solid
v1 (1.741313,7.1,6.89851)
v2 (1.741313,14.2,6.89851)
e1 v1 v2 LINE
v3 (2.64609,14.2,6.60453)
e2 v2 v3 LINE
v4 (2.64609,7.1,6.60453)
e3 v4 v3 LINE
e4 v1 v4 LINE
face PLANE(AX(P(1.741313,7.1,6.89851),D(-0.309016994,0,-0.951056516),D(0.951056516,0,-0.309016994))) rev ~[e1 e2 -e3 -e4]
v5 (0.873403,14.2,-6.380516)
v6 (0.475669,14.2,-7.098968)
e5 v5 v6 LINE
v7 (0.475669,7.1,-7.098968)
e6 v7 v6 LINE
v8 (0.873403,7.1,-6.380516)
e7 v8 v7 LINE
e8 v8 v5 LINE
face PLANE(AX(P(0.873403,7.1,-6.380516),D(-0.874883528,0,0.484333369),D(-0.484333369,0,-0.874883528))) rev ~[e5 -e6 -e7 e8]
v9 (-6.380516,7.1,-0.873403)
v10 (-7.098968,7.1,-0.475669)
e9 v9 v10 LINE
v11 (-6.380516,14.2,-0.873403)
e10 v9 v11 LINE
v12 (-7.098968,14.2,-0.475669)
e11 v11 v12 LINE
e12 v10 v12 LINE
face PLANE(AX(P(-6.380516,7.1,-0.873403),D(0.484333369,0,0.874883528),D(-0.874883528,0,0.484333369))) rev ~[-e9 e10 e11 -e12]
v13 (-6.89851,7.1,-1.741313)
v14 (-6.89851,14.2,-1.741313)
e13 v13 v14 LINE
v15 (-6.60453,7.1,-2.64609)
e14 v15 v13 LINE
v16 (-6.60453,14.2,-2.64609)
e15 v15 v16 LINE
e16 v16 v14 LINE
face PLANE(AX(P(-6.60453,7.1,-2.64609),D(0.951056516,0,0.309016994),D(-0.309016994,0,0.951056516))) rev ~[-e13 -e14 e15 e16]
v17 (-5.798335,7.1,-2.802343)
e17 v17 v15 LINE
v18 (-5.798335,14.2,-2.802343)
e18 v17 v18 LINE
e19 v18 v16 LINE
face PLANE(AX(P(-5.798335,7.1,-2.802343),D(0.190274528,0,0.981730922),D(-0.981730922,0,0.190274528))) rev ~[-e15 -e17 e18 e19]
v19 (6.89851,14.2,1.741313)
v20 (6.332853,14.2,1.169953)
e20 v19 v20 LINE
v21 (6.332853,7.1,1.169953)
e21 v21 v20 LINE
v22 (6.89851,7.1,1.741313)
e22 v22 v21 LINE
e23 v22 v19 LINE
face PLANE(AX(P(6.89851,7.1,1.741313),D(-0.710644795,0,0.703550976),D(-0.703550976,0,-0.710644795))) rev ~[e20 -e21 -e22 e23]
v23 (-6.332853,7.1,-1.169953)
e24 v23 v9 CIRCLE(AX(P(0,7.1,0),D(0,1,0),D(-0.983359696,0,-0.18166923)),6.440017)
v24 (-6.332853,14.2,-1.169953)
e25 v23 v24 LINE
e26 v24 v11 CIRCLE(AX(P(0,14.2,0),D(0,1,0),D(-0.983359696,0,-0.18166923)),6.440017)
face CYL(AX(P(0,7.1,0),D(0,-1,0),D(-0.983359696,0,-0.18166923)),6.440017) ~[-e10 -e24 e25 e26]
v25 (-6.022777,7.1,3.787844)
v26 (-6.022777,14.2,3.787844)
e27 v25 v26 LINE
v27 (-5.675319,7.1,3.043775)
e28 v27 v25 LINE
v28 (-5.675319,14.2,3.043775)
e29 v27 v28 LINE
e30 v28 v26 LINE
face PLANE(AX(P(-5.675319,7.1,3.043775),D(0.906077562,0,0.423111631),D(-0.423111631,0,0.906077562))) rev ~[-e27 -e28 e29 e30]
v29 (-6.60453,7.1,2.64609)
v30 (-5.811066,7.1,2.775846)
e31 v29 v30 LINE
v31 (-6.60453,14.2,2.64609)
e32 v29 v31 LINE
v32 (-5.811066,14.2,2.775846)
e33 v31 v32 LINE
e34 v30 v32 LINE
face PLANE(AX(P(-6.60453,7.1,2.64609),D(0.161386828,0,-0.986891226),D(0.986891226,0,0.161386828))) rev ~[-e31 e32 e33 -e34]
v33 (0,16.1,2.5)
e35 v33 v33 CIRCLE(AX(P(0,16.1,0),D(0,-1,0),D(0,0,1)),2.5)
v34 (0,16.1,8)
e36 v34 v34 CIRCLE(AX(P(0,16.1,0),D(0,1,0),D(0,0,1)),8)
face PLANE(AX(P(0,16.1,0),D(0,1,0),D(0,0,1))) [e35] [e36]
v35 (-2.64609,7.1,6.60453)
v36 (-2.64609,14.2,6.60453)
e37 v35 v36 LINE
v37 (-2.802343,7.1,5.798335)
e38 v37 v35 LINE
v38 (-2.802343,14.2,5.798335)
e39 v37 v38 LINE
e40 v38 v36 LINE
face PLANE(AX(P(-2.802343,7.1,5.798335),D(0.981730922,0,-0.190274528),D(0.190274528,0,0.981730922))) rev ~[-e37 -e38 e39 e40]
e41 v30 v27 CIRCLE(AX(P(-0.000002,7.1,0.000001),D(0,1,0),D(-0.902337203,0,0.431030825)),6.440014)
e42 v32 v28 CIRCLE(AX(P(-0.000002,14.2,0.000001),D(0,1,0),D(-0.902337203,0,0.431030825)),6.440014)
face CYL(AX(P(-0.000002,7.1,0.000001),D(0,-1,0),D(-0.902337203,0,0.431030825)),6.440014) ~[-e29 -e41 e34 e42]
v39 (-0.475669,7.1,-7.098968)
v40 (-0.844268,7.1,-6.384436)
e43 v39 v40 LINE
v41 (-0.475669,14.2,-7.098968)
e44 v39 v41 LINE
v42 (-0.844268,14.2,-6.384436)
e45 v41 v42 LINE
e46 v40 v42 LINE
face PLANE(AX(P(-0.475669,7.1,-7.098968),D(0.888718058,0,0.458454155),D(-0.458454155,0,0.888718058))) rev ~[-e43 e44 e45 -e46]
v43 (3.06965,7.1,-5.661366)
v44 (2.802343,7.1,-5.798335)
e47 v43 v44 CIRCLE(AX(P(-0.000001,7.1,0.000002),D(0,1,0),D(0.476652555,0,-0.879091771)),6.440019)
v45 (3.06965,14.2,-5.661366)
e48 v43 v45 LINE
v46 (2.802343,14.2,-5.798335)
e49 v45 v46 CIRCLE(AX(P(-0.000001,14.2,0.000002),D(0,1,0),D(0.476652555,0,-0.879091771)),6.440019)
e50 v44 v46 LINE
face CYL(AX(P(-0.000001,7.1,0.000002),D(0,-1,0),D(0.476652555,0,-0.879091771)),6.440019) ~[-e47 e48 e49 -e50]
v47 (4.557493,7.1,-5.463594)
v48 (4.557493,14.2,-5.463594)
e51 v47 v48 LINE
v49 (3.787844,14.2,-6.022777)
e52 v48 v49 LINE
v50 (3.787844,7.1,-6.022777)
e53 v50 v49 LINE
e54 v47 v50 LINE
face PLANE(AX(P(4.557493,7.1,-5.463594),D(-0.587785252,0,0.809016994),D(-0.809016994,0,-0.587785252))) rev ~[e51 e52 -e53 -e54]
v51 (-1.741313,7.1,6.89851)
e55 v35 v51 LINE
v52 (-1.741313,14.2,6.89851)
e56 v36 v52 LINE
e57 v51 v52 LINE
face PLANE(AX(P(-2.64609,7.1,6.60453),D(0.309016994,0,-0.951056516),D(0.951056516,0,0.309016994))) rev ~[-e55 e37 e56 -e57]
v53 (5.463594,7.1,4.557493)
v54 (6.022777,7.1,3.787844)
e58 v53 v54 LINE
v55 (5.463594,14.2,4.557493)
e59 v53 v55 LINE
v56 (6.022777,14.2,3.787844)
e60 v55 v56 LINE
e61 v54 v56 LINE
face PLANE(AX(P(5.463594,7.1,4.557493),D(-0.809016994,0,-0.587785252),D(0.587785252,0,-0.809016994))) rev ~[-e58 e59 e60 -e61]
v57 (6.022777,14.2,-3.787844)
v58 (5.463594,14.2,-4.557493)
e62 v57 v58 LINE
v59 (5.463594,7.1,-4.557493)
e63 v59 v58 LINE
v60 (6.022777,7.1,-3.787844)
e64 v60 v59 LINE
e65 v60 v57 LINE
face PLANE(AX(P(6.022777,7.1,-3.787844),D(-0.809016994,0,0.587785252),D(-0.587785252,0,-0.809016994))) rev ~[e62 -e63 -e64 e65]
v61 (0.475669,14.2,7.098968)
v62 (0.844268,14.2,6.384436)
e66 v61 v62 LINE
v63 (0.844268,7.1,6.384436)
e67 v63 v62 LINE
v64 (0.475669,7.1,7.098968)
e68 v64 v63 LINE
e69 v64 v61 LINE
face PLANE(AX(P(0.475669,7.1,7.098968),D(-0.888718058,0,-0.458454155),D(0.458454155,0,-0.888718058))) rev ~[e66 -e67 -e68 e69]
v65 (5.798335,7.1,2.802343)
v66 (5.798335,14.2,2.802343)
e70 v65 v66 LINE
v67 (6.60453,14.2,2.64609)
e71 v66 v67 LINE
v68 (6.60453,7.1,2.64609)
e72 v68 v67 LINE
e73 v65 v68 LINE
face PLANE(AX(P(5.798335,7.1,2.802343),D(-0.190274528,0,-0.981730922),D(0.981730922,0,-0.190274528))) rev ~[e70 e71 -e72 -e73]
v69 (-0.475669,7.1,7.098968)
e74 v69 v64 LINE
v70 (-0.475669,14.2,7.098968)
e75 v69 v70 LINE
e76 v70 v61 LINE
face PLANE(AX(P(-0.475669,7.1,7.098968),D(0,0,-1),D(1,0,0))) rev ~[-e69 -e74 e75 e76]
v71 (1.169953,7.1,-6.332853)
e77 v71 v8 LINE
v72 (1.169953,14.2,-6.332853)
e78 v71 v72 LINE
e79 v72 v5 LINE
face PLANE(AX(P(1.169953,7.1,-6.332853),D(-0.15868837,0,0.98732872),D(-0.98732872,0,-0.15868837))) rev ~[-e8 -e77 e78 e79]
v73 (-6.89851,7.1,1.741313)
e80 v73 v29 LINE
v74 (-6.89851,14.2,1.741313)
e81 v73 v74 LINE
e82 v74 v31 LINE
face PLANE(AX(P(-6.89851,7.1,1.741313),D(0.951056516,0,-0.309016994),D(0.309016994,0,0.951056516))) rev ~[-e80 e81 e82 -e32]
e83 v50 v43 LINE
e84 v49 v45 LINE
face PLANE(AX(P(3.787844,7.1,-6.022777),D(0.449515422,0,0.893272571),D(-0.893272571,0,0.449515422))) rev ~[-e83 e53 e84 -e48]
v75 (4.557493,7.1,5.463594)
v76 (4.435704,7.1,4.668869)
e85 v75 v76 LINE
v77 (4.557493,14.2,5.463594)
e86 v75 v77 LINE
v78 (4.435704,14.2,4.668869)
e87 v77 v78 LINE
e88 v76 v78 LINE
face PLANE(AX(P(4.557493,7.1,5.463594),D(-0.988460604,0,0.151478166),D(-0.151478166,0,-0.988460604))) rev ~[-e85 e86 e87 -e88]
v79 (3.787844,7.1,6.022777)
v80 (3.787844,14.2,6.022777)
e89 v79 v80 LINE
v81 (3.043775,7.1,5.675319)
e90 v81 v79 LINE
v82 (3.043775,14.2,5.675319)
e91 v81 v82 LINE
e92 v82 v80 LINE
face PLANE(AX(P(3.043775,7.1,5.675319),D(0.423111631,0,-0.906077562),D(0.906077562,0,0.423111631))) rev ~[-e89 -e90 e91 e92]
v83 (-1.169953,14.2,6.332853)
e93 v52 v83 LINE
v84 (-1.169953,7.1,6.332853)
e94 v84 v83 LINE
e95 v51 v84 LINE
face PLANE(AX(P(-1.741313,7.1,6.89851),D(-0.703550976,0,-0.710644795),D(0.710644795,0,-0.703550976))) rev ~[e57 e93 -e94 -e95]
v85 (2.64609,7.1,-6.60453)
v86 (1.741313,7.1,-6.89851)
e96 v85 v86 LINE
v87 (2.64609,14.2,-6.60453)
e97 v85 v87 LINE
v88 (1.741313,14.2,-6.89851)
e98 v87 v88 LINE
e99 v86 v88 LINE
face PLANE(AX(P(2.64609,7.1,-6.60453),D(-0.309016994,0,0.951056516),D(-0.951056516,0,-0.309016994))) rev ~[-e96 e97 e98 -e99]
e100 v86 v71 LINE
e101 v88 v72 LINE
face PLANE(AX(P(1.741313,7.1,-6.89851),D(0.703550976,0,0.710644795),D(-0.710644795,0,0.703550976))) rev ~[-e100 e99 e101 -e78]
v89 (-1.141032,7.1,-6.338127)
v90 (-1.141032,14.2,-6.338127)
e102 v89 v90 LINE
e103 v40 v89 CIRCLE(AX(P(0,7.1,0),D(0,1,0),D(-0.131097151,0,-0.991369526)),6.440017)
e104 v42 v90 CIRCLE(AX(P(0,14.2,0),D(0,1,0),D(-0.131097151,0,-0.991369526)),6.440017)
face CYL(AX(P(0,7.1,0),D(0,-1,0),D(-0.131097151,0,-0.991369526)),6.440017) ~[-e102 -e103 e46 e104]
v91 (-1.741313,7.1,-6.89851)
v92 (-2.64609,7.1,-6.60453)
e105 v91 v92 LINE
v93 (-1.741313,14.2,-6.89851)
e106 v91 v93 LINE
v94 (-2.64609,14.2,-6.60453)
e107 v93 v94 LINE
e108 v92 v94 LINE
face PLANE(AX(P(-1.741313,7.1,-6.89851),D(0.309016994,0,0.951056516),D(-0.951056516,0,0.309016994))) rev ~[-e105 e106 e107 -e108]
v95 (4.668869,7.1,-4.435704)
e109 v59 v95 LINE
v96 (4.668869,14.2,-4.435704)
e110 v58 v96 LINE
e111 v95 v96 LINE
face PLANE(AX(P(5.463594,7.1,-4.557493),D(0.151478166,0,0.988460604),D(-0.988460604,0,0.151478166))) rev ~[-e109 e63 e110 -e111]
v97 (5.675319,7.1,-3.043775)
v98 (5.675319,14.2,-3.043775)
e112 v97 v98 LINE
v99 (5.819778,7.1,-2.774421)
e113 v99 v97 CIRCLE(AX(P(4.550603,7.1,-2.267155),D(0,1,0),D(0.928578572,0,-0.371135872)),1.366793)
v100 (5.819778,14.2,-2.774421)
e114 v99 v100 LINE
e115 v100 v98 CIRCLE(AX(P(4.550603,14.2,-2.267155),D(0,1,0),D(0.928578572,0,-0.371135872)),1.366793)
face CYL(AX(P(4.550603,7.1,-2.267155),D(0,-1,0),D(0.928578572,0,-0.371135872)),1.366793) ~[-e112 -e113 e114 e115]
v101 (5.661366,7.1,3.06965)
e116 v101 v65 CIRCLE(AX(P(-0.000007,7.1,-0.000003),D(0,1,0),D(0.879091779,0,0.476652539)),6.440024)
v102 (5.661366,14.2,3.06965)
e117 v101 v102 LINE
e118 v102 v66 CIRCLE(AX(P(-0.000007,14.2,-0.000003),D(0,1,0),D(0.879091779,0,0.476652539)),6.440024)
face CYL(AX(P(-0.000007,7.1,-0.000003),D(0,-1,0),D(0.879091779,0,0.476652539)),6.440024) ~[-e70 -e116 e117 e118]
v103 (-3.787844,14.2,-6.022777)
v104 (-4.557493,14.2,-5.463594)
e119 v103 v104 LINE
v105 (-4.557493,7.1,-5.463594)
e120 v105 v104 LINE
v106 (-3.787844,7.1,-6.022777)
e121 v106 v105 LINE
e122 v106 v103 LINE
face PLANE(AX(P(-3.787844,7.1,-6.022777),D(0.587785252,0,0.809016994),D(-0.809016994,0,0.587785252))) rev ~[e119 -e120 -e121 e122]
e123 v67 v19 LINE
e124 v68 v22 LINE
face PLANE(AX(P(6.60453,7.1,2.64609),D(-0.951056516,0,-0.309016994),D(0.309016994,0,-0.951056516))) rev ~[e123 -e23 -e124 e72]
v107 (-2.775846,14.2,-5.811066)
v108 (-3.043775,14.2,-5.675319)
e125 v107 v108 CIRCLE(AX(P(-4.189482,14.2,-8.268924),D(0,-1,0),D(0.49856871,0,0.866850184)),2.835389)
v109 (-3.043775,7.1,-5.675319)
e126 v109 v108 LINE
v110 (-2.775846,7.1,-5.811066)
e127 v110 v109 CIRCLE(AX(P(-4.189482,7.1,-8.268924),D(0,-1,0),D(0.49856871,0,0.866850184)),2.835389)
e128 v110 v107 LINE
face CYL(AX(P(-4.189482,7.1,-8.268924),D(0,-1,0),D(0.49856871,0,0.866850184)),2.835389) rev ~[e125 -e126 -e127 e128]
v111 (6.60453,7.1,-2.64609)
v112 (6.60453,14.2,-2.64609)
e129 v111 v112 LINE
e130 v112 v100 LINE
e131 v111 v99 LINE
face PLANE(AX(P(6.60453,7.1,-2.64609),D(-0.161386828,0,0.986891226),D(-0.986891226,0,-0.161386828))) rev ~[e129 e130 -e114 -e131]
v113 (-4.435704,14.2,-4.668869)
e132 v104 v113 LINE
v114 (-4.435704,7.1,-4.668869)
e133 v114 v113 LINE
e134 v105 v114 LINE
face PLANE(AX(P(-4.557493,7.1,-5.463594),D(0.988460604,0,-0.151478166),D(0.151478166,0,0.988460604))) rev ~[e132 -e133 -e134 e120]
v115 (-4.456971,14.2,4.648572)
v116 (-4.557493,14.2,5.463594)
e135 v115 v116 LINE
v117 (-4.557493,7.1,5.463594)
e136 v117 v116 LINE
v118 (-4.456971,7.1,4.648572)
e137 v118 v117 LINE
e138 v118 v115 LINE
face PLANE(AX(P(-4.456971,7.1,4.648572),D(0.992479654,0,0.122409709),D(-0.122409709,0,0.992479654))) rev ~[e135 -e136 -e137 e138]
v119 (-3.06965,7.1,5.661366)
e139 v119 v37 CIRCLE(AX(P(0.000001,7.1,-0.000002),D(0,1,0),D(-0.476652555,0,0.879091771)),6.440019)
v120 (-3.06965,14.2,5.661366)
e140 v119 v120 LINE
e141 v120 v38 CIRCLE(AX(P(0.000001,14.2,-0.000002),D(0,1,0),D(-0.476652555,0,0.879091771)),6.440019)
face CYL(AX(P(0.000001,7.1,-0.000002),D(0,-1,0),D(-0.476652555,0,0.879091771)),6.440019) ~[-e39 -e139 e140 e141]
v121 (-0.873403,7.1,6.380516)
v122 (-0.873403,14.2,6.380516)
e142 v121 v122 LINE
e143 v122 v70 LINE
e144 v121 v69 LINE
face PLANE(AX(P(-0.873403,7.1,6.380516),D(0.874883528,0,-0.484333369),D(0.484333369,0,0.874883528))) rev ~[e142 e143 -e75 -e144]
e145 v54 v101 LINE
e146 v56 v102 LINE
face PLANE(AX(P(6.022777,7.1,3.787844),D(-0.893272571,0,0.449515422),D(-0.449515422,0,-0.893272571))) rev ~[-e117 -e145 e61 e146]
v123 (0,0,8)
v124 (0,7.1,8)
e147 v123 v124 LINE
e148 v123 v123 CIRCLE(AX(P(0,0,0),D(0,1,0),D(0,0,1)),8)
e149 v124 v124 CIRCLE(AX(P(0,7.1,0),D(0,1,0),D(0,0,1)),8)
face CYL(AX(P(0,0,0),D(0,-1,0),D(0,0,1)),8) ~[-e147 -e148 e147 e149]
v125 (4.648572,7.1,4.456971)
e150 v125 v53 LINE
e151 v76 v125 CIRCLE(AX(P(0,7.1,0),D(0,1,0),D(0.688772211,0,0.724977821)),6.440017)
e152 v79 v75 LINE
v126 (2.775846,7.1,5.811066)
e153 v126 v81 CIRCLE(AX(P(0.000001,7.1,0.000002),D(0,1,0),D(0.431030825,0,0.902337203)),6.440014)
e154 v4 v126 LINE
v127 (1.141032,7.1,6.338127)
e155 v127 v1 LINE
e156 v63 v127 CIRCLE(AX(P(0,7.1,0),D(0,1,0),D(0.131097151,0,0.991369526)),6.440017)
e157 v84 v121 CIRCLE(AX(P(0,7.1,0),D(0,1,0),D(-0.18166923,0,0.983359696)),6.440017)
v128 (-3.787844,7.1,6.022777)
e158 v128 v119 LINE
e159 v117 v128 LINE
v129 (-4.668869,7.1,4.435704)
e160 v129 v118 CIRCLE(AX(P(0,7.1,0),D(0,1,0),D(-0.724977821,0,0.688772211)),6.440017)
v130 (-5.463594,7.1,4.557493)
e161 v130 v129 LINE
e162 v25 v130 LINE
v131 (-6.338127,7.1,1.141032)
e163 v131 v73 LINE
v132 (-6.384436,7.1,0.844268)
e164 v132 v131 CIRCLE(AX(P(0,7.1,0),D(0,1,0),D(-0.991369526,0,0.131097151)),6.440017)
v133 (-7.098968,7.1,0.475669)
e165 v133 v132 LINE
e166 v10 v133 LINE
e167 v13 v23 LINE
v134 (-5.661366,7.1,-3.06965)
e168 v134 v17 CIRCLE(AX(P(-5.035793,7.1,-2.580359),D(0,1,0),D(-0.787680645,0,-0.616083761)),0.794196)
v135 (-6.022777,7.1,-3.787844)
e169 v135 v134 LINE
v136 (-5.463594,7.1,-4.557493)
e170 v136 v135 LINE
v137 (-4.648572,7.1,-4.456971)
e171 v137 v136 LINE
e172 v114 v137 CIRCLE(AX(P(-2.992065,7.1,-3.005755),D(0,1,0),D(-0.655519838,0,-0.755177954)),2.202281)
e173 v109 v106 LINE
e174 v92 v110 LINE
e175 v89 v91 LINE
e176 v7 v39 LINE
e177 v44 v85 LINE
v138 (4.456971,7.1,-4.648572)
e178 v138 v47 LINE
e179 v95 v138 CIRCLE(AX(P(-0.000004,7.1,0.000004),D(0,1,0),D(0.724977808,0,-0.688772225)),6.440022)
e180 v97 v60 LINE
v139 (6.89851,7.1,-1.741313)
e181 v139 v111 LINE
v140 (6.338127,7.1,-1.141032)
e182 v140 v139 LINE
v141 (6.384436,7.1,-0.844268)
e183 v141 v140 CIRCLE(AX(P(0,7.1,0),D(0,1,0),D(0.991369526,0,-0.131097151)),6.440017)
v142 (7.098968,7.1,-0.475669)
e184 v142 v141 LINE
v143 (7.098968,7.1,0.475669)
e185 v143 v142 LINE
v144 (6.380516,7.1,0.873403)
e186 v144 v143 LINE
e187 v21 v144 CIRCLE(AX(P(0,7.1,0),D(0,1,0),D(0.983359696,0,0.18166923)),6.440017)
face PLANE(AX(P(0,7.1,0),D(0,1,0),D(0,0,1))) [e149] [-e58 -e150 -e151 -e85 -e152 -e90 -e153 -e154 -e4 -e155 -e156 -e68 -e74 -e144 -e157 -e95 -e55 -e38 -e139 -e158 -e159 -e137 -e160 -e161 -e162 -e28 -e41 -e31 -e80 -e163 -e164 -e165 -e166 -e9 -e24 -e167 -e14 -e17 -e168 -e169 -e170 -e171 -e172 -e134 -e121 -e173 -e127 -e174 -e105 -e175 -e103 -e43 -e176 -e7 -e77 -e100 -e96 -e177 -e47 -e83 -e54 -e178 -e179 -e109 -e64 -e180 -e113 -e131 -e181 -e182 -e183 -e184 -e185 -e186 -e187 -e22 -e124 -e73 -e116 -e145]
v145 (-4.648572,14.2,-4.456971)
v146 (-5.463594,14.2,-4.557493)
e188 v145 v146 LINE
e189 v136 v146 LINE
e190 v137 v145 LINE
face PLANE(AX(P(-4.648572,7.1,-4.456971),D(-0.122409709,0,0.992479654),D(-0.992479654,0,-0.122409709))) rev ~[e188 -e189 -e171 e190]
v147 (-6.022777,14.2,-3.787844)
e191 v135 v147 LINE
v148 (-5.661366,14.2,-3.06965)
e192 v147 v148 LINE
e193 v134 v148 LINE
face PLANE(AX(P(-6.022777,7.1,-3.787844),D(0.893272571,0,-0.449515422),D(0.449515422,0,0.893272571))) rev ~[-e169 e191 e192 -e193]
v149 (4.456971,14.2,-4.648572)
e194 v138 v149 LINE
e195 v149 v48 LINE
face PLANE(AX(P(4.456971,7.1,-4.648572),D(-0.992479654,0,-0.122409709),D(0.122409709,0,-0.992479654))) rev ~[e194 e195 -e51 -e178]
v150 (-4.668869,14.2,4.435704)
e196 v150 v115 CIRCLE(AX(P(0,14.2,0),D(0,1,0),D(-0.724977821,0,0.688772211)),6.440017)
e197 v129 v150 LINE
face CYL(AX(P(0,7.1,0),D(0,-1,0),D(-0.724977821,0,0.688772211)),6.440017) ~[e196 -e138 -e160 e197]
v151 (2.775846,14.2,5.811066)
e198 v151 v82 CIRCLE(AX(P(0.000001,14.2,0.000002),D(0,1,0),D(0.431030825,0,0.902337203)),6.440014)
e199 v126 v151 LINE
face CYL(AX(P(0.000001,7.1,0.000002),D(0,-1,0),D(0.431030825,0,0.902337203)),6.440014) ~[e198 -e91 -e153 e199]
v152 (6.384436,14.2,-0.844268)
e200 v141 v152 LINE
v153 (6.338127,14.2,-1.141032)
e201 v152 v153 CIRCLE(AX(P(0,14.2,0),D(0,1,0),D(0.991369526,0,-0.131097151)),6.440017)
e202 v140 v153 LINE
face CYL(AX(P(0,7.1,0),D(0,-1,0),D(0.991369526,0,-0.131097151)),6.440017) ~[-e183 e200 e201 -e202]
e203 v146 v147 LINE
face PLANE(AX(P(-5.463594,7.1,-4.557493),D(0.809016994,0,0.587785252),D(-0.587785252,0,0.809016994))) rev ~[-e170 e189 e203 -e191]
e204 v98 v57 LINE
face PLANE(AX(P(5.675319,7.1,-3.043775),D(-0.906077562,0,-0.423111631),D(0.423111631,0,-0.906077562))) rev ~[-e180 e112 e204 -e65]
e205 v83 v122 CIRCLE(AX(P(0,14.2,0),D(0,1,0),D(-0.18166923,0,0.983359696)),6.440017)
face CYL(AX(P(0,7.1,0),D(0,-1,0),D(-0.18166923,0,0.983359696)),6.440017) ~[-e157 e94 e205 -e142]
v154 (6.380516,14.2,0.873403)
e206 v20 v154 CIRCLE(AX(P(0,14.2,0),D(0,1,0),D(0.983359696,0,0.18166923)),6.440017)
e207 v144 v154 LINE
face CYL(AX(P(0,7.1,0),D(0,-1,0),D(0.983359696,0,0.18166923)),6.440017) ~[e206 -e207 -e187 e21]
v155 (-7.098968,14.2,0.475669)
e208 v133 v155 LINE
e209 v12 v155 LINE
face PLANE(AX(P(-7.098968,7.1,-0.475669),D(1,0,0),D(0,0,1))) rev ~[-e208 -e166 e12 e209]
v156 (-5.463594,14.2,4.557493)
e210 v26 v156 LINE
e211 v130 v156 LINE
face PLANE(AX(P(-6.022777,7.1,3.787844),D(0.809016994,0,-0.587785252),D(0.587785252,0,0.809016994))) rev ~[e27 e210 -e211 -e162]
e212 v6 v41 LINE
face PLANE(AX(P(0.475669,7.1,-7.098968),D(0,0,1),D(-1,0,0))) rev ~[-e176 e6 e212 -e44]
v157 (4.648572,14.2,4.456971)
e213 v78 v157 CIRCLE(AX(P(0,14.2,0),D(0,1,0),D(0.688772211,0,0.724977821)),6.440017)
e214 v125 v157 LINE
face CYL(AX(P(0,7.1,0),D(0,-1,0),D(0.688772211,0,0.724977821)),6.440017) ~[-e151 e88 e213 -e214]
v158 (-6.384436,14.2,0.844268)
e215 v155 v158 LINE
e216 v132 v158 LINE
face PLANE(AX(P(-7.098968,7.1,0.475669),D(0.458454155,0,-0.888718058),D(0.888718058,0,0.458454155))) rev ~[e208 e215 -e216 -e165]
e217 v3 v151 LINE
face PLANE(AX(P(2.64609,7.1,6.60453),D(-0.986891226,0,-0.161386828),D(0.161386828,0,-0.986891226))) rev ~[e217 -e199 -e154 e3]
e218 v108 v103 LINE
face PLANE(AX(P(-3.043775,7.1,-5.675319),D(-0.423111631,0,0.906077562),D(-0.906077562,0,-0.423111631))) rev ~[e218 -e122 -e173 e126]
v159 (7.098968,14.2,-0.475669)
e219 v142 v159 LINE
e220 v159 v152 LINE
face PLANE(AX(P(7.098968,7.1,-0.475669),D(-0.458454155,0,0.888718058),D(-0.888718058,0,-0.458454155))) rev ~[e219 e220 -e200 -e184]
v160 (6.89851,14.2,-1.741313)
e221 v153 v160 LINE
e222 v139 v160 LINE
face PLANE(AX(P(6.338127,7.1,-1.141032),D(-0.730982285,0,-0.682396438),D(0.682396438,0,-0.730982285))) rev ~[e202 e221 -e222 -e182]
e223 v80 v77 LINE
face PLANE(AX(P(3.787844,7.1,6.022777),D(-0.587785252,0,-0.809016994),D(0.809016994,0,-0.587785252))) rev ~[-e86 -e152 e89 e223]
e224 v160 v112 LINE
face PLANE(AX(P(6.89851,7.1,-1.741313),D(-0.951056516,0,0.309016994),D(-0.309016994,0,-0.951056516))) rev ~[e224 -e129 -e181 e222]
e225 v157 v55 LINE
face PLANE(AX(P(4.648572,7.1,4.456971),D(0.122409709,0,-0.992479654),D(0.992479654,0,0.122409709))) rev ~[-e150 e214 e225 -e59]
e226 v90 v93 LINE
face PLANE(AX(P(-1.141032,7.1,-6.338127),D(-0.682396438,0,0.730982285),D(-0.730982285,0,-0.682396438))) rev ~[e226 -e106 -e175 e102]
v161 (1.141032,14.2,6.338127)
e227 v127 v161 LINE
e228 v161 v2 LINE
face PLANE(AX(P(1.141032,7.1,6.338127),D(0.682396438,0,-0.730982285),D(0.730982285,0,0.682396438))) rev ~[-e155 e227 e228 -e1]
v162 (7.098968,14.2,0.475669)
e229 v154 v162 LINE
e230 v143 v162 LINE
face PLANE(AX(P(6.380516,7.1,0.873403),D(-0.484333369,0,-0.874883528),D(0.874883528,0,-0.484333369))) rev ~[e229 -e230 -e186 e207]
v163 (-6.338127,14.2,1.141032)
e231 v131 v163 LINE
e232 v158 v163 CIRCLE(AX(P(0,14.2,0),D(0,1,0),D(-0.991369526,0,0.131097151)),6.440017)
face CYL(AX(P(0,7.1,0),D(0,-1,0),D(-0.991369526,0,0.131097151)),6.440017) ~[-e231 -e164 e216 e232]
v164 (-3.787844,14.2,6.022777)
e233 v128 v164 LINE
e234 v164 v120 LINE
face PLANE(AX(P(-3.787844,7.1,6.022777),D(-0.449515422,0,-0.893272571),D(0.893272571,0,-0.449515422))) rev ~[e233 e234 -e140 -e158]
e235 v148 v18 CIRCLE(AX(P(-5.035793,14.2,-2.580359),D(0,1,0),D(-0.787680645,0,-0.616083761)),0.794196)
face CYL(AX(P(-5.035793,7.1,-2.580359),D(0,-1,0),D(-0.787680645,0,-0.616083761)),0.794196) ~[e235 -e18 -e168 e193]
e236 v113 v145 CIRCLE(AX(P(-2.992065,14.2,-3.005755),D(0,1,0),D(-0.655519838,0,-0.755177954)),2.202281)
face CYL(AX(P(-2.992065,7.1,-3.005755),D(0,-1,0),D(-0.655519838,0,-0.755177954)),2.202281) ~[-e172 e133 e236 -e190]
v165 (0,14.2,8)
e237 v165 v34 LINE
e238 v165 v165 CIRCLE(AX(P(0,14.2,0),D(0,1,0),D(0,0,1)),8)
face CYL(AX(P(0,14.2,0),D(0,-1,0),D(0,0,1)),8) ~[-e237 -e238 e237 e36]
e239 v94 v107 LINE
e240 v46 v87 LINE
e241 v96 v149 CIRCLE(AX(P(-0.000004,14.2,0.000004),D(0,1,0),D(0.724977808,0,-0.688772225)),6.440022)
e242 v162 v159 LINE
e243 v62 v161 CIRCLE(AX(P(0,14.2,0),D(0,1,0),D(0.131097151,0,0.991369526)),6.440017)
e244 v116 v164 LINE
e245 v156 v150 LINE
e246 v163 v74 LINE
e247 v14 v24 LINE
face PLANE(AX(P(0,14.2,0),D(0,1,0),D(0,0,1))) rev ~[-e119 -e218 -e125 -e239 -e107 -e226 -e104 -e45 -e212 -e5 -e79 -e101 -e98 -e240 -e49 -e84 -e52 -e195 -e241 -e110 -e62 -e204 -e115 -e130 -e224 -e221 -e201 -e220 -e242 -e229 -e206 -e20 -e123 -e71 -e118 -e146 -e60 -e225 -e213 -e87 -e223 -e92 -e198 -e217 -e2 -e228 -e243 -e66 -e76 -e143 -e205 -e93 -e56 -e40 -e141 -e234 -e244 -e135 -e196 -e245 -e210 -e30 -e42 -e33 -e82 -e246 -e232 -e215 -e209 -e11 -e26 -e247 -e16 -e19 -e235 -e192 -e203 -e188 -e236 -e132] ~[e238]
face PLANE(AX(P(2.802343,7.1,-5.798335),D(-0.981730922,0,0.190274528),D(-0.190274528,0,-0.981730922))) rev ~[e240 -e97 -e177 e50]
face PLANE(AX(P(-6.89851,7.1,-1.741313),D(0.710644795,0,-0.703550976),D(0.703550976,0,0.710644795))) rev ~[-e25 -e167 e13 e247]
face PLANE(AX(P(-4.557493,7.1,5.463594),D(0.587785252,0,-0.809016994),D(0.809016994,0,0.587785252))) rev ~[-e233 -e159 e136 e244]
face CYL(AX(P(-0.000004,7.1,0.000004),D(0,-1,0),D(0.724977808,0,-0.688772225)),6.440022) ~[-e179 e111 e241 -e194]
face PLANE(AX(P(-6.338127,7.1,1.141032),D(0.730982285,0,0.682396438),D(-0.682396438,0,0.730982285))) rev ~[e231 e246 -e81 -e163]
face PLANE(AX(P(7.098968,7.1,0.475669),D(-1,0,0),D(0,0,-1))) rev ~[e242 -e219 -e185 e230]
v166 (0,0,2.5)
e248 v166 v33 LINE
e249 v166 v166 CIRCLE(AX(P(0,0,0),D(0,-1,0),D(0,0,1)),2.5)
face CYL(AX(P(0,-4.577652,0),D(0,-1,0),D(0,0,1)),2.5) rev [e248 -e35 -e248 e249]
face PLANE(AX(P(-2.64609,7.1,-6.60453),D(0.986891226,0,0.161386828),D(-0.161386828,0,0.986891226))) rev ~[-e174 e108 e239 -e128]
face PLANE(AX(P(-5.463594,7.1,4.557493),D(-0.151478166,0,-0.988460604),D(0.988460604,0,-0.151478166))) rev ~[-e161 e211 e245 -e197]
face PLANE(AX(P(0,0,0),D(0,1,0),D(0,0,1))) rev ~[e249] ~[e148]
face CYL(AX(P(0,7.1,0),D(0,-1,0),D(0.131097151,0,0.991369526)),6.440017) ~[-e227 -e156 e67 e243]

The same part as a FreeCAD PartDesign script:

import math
import FreeCAD as App
import Part
import Sketcher
Q = App.Units.Quantity

doc = App.newDocument("Part")
params = doc.addObject("Spreadsheet::Sheet", "Params")
for row, (alias, value) in enumerate([
    ("sketch1_diameter", "16 mm"),
    ("pad1_length", "7.1 mm"),
    ("pad2_length", "7.1 mm"),
    ("sketch3_diameter", "16 mm"),
    ("pad3_length", "1.9 mm"),
    ("sketch4_diameter", "5 mm"),
], start=1):
    params.set(f"A{row}", alias)
    params.set(f"B{row}", "=" + value)
    params.setAlias(f"B{row}", alias)

body = doc.addObject("PartDesign::Body", "Body")

# Sketch on XZ plane
sketch1 = body.newObject("Sketcher::SketchObject", "Sketch")
sketch1.AttachmentSupport = (doc.getObject("XZ_Plane"), [""])
sketch1.MapMode = "FlatFace"
sketch1.addGeometry(Part.Circle(App.Vector(0, 0, 0), App.Vector(0, 0, 1), 8), False)
sketch1.addConstraint([
    Sketcher.Constraint("Coincident", 0, 3, -1, 1),
    Sketcher.Constraint("Diameter", 0, 16.0),
])
sketch1.setExpression("Constraints[1]", "Params.sketch1_diameter")
pad1 = body.newObject("PartDesign::Pad", "Pad")
pad1.Profile = sketch1
pad1.setExpression("Length", "Params.pad1_length")
pad1.Reversed = True

# Sketch on XZ plane
sketch2 = body.newObject("Sketcher::SketchObject", "Sketch001")
sketch2.AttachmentSupport = (doc.getObject("XZ_Plane"), [""])
sketch2.MapMode = "FlatFace"
sketch2.AttachmentOffset = App.Placement(App.Vector(0, 0, -7.1), App.Rotation())
sketch2.addGeometry([
    Part.LineSegment(App.Vector(-0.48, -7.1, 0), App.Vector(-0.84, -6.38, 0)),  # 0
    Part.ArcOfCircle(Part.Circle(App.Vector(0, 0, 0), App.Vector(0, 0, 1), 6.44), math.radians(-100.21), math.radians(-97.53)),  # 1
    Part.LineSegment(App.Vector(-1.14, -6.34, 0), App.Vector(-1.74, -6.9, 0)),  # 2
    Part.LineSegment(App.Vector(-1.74, -6.9, 0), App.Vector(-2.65, -6.6, 0)),  # 3
    Part.LineSegment(App.Vector(-2.65, -6.6, 0), App.Vector(-2.78, -5.81, 0)),  # 4
    Part.ArcOfCircle(Part.Circle(App.Vector(-4.19, -8.27, 0), App.Vector(0, 0, 1), 2.84), math.radians(60.09), math.radians(66.17)),  # 5
    Part.LineSegment(App.Vector(-3.04, -5.68, 0), App.Vector(-3.79, -6.02, 0)),  # 6
    Part.LineSegment(App.Vector(-3.79, -6.02, 0), App.Vector(-4.56, -5.46, 0)),  # 7
    Part.LineSegment(App.Vector(-4.56, -5.46, 0), App.Vector(-4.44, -4.67, 0)),  # 8
    Part.ArcOfCircle(Part.Circle(App.Vector(-2.99, -3.01, 0), App.Vector(0, 0, 1), 2.2), math.radians(-138.78), math.radians(-130.96)),  # 9
    Part.LineSegment(App.Vector(-4.65, -4.46, 0), App.Vector(-5.46, -4.56, 0)),  # 10
    Part.LineSegment(App.Vector(-5.46, -4.56, 0), App.Vector(-6.02, -3.79, 0)),  # 11
    Part.LineSegment(App.Vector(-6.02, -3.79, 0), App.Vector(-5.66, -3.07, 0)),  # 12
    Part.ArcOfCircle(Part.Circle(App.Vector(-5.04, -2.58, 0), App.Vector(0, 0, 1), 0.79), math.radians(-164), math.radians(-142)),  # 13
    Part.LineSegment(App.Vector(-5.8, -2.8, 0), App.Vector(-6.6, -2.65, 0)),  # 14
    Part.LineSegment(App.Vector(-6.6, -2.65, 0), App.Vector(-6.9, -1.74, 0)),  # 15
    Part.LineSegment(App.Vector(-6.9, -1.74, 0), App.Vector(-6.33, -1.17, 0)),  # 16
    Part.ArcOfCircle(Part.Circle(App.Vector(0, 0, 0), App.Vector(0, 0, 1), 6.44), math.radians(-172.21), math.radians(-169.53)),  # 17
    Part.LineSegment(App.Vector(-6.38, -0.87, 0), App.Vector(-7.1, -0.48, 0)),  # 18
    Part.LineSegment(App.Vector(-7.1, -0.48, 0), App.Vector(-7.1, 0.48, 0)),  # 19
    Part.LineSegment(App.Vector(-7.1, 0.48, 0), App.Vector(-6.38, 0.84, 0)),  # 20
    Part.ArcOfCircle(Part.Circle(App.Vector(0, 0, 0), App.Vector(0, 0, 1), 6.44), math.radians(169.79), math.radians(172.47)),  # 21
    Part.LineSegment(App.Vector(-6.34, 1.14, 0), App.Vector(-6.9, 1.74, 0)),  # 22
    Part.LineSegment(App.Vector(-6.9, 1.74, 0), App.Vector(-6.6, 2.65, 0)),  # 23
    Part.LineSegment(App.Vector(-6.6, 2.65, 0), App.Vector(-5.81, 2.78, 0)),  # 24
    Part.ArcOfCircle(Part.Circle(App.Vector(0, 0, 0), App.Vector(0, 0, 1), 6.44), math.radians(151.79), math.radians(154.47)),  # 25
    Part.LineSegment(App.Vector(-5.68, 3.04, 0), App.Vector(-6.02, 3.79, 0)),  # 26
    Part.LineSegment(App.Vector(-6.02, 3.79, 0), App.Vector(-5.46, 4.56, 0)),  # 27
    Part.LineSegment(App.Vector(-5.46, 4.56, 0), App.Vector(-4.67, 4.44, 0)),  # 28
    Part.ArcOfCircle(Part.Circle(App.Vector(0, 0, 0), App.Vector(0, 0, 1), 6.44), math.radians(133.79), math.radians(136.47)),  # 29
    Part.LineSegment(App.Vector(-4.46, 4.65, 0), App.Vector(-4.56, 5.46, 0)),  # 30
    Part.LineSegment(App.Vector(-4.56, 5.46, 0), App.Vector(-3.79, 6.02, 0)),  # 31
    Part.LineSegment(App.Vector(-3.79, 6.02, 0), App.Vector(-3.07, 5.66, 0)),  # 32
    Part.ArcOfCircle(Part.Circle(App.Vector(0, 0, 0), App.Vector(0, 0, 1), 6.44), math.radians(115.79), math.radians(118.47)),  # 33
    Part.LineSegment(App.Vector(-2.8, 5.8, 0), App.Vector(-2.65, 6.6, 0)),  # 34
    Part.LineSegment(App.Vector(-2.65, 6.6, 0), App.Vector(-1.74, 6.9, 0)),  # 35
    Part.LineSegment(App.Vector(-1.74, 6.9, 0), App.Vector(-1.17, 6.33, 0)),  # 36
    Part.ArcOfCircle(Part.Circle(App.Vector(0, 0, 0), App.Vector(0, 0, 1), 6.44), math.radians(97.79), math.radians(100.47)),  # 37
    Part.LineSegment(App.Vector(-0.87, 6.38, 0), App.Vector(-0.48, 7.1, 0)),  # 38
    Part.LineSegment(App.Vector(-0.48, 7.1, 0), App.Vector(0.48, 7.1, 0)),  # 39
    Part.LineSegment(App.Vector(0.48, 7.1, 0), App.Vector(0.84, 6.38, 0)),  # 40
    Part.ArcOfCircle(Part.Circle(App.Vector(0, 0, 0), App.Vector(0, 0, 1), 6.44), math.radians(79.79), math.radians(82.47)),  # 41
    Part.LineSegment(App.Vector(1.14, 6.34, 0), App.Vector(1.74, 6.9, 0)),  # 42
    Part.LineSegment(App.Vector(1.74, 6.9, 0), App.Vector(2.65, 6.6, 0)),  # 43
    Part.LineSegment(App.Vector(2.65, 6.6, 0), App.Vector(2.78, 5.81, 0)),  # 44
    Part.ArcOfCircle(Part.Circle(App.Vector(0, 0, 0), App.Vector(0, 0, 1), 6.44), math.radians(61.79), math.radians(64.47)),  # 45
    Part.LineSegment(App.Vector(3.04, 5.68, 0), App.Vector(3.79, 6.02, 0)),  # 46
    Part.LineSegment(App.Vector(3.79, 6.02, 0), App.Vector(4.56, 5.46, 0)),  # 47
    Part.LineSegment(App.Vector(4.56, 5.46, 0), App.Vector(4.44, 4.67, 0)),  # 48
    Part.ArcOfCircle(Part.Circle(App.Vector(0, 0, 0), App.Vector(0, 0, 1), 6.44), math.radians(43.79), math.radians(46.47)),  # 49
    Part.LineSegment(App.Vector(4.65, 4.46, 0), App.Vector(5.46, 4.56, 0)),  # 50
    Part.LineSegment(App.Vector(5.46, 4.56, 0), App.Vector(6.02, 3.79, 0)),  # 51
    Part.LineSegment(App.Vector(6.02, 3.79, 0), App.Vector(5.66, 3.07, 0)),  # 52
    Part.ArcOfCircle(Part.Circle(App.Vector(0, 0, 0), App.Vector(0, 0, 1), 6.44), math.radians(25.79), math.radians(28.47)),  # 53
    Part.LineSegment(App.Vector(5.8, 2.8, 0), App.Vector(6.6, 2.65, 0)),  # 54
    Part.LineSegment(App.Vector(6.6, 2.65, 0), App.Vector(6.9, 1.74, 0)),  # 55
    Part.LineSegment(App.Vector(6.9, 1.74, 0), App.Vector(6.33, 1.17, 0)),  # 56
    Part.ArcOfCircle(Part.Circle(App.Vector(0, 0, 0), App.Vector(0, 0, 1), 6.44), math.radians(7.79), math.radians(10.47)),  # 57
    Part.LineSegment(App.Vector(6.38, 0.87, 0), App.Vector(7.1, 0.48, 0)),  # 58
    Part.LineSegment(App.Vector(7.1, 0.48, 0), App.Vector(7.1, -0.48, 0)),  # 59
    Part.LineSegment(App.Vector(7.1, -0.48, 0), App.Vector(6.38, -0.84, 0)),  # 60
    Part.ArcOfCircle(Part.Circle(App.Vector(0, 0, 0), App.Vector(0, 0, 1), 6.44), math.radians(-10.21), math.radians(-7.53)),  # 61
    Part.LineSegment(App.Vector(6.34, -1.14, 0), App.Vector(6.9, -1.74, 0)),  # 62
    Part.LineSegment(App.Vector(6.9, -1.74, 0), App.Vector(6.6, -2.65, 0)),  # 63
    Part.LineSegment(App.Vector(6.6, -2.65, 0), App.Vector(5.82, -2.77, 0)),  # 64
    Part.ArcOfCircle(Part.Circle(App.Vector(4.55, -2.27, 0), App.Vector(0, 0, 1), 1.37), math.radians(-34.63), math.radians(-21.79)),  # 65
    Part.LineSegment(App.Vector(5.68, -3.04, 0), App.Vector(6.02, -3.79, 0)),  # 66
    Part.LineSegment(App.Vector(6.02, -3.79, 0), App.Vector(5.46, -4.56, 0)),  # 67
    Part.LineSegment(App.Vector(5.46, -4.56, 0), App.Vector(4.67, -4.44, 0)),  # 68
    Part.ArcOfCircle(Part.Circle(App.Vector(0, 0, 0), App.Vector(0, 0, 1), 6.44), math.radians(-46.21), math.radians(-43.53)),  # 69
    Part.LineSegment(App.Vector(4.46, -4.65, 0), App.Vector(4.56, -5.46, 0)),  # 70
    Part.LineSegment(App.Vector(4.56, -5.46, 0), App.Vector(3.79, -6.02, 0)),  # 71
    Part.LineSegment(App.Vector(3.79, -6.02, 0), App.Vector(3.07, -5.66, 0)),  # 72
    Part.ArcOfCircle(Part.Circle(App.Vector(0, 0, 0), App.Vector(0, 0, 1), 6.44), math.radians(-64.21), math.radians(-61.53)),  # 73
    Part.LineSegment(App.Vector(2.8, -5.8, 0), App.Vector(2.65, -6.6, 0)),  # 74
    Part.LineSegment(App.Vector(2.65, -6.6, 0), App.Vector(1.74, -6.9, 0)),  # 75
    Part.LineSegment(App.Vector(1.74, -6.9, 0), App.Vector(1.17, -6.33, 0)),  # 76
    Part.LineSegment(App.Vector(1.17, -6.33, 0), App.Vector(0.87, -6.38, 0)),  # 77
    Part.LineSegment(App.Vector(0.87, -6.38, 0), App.Vector(0.48, -7.1, 0)),  # 78
    Part.LineSegment(App.Vector(0.48, -7.1, 0), App.Vector(-0.48, -7.1, 0)),  # 79
], False)
sketch2.addConstraint([
    Sketcher.Constraint("Coincident", 0, 2, 1, 2),
    Sketcher.Constraint("Coincident", 1, 1, 2, 1),
    Sketcher.Constraint("Coincident", 2, 2, 3, 1),
    Sketcher.Constraint("Coincident", 3, 2, 4, 1),
    Sketcher.Constraint("Coincident", 4, 2, 5, 1),
    Sketcher.Constraint("Coincident", 5, 2, 6, 1),
    Sketcher.Constraint("Coincident", 6, 2, 7, 1),
    Sketcher.Constraint("Coincident", 7, 2, 8, 1),
    Sketcher.Constraint("Coincident", 8, 2, 9, 2),
    Sketcher.Constraint("Coincident", 9, 1, 10, 1),
    Sketcher.Constraint("Coincident", 10, 2, 11, 1),
    Sketcher.Constraint("Coincident", 11, 2, 12, 1),
    Sketcher.Constraint("Coincident", 12, 2, 13, 2),
    Sketcher.Constraint("Coincident", 13, 1, 14, 1),
    Sketcher.Constraint("Coincident", 14, 2, 15, 1),
    Sketcher.Constraint("Coincident", 15, 2, 16, 1),
    Sketcher.Constraint("Coincident", 16, 2, 17, 2),
    Sketcher.Constraint("Coincident", 17, 1, 18, 1),
    Sketcher.Constraint("Coincident", 18, 2, 19, 1),
    Sketcher.Constraint("Coincident", 19, 2, 20, 1),
    Sketcher.Constraint("Coincident", 20, 2, 21, 2),
    Sketcher.Constraint("Coincident", 21, 1, 22, 1),
    Sketcher.Constraint("Coincident", 22, 2, 23, 1),
    Sketcher.Constraint("Coincident", 23, 2, 24, 1),
    Sketcher.Constraint("Coincident", 24, 2, 25, 2),
    Sketcher.Constraint("Coincident", 25, 1, 26, 1),
    Sketcher.Constraint("Coincident", 26, 2, 27, 1),
    Sketcher.Constraint("Coincident", 27, 2, 28, 1),
    Sketcher.Constraint("Coincident", 28, 2, 29, 2),
    Sketcher.Constraint("Coincident", 29, 1, 30, 1),
    Sketcher.Constraint("Coincident", 30, 2, 31, 1),
    Sketcher.Constraint("Coincident", 31, 2, 32, 1),
    Sketcher.Constraint("Coincident", 32, 2, 33, 2),
    Sketcher.Constraint("Coincident", 33, 1, 34, 1),
    Sketcher.Constraint("Coincident", 34, 2, 35, 1),
    Sketcher.Constraint("Coincident", 35, 2, 36, 1),
    Sketcher.Constraint("Coincident", 36, 2, 37, 2),
    Sketcher.Constraint("Coincident", 37, 1, 38, 1),
    Sketcher.Constraint("Coincident", 38, 2, 39, 1),
    Sketcher.Constraint("Coincident", 39, 2, 40, 1),
    Sketcher.Constraint("Coincident", 40, 2, 41, 2),
    Sketcher.Constraint("Coincident", 41, 1, 42, 1),
    Sketcher.Constraint("Coincident", 42, 2, 43, 1),
    Sketcher.Constraint("Coincident", 43, 2, 44, 1),
    Sketcher.Constraint("Coincident", 44, 2, 45, 2),
    Sketcher.Constraint("Coincident", 45, 1, 46, 1),
    Sketcher.Constraint("Coincident", 46, 2, 47, 1),
    Sketcher.Constraint("Coincident", 47, 2, 48, 1),
    Sketcher.Constraint("Coincident", 48, 2, 49, 2),
    Sketcher.Constraint("Coincident", 49, 1, 50, 1),
    Sketcher.Constraint("Coincident", 50, 2, 51, 1),
    Sketcher.Constraint("Coincident", 51, 2, 52, 1),
    Sketcher.Constraint("Coincident", 52, 2, 53, 2),
    Sketcher.Constraint("Coincident", 53, 1, 54, 1),
    Sketcher.Constraint("Coincident", 54, 2, 55, 1),
    Sketcher.Constraint("Coincident", 55, 2, 56, 1),
    Sketcher.Constraint("Coincident", 56, 2, 57, 2),
    Sketcher.Constraint("Coincident", 57, 1, 58, 1),
    Sketcher.Constraint("Coincident", 58, 2, 59, 1),
    Sketcher.Constraint("Coincident", 59, 2, 60, 1),
    Sketcher.Constraint("Coincident", 60, 2, 61, 2),
    Sketcher.Constraint("Coincident", 61, 1, 62, 1),
    Sketcher.Constraint("Coincident", 62, 2, 63, 1),
    Sketcher.Constraint("Coincident", 63, 2, 64, 1),
    Sketcher.Constraint("Coincident", 64, 2, 65, 2),
    Sketcher.Constraint("Coincident", 65, 1, 66, 1),
    Sketcher.Constraint("Coincident", 66, 2, 67, 1),
    Sketcher.Constraint("Coincident", 67, 2, 68, 1),
    Sketcher.Constraint("Coincident", 68, 2, 69, 2),
    Sketcher.Constraint("Coincident", 69, 1, 70, 1),
    Sketcher.Constraint("Coincident", 70, 2, 71, 1),
    Sketcher.Constraint("Coincident", 71, 2, 72, 1),
    Sketcher.Constraint("Coincident", 72, 2, 73, 2),
    Sketcher.Constraint("Coincident", 73, 1, 74, 1),
    Sketcher.Constraint("Coincident", 74, 2, 75, 1),
    Sketcher.Constraint("Coincident", 75, 2, 76, 1),
    Sketcher.Constraint("Coincident", 76, 2, 77, 1),
    Sketcher.Constraint("Coincident", 77, 2, 78, 1),
    Sketcher.Constraint("Coincident", 78, 2, 79, 1),
    Sketcher.Constraint("Coincident", 79, 2, 0, 1),
    Sketcher.Constraint("Vertical", 19),
    Sketcher.Constraint("Horizontal", 39),
    Sketcher.Constraint("Vertical", 59),
    Sketcher.Constraint("Horizontal", 79),
    Sketcher.Constraint("Coincident", 1, 3, -1, 1),
    Sketcher.Constraint("Coincident", 17, 3, -1, 1),
    Sketcher.Constraint("Coincident", 21, 3, -1, 1),
    Sketcher.Constraint("Coincident", 25, 3, -1, 1),
    Sketcher.Constraint("Coincident", 29, 3, -1, 1),
    Sketcher.Constraint("Coincident", 33, 3, -1, 1),
    Sketcher.Constraint("Coincident", 37, 3, -1, 1),
    Sketcher.Constraint("Coincident", 41, 3, -1, 1),
    Sketcher.Constraint("Coincident", 45, 3, -1, 1),
    Sketcher.Constraint("Coincident", 49, 3, -1, 1),
    Sketcher.Constraint("Coincident", 53, 3, -1, 1),
    Sketcher.Constraint("Coincident", 57, 3, -1, 1),
    Sketcher.Constraint("Coincident", 61, 3, -1, 1),
    Sketcher.Constraint("Coincident", 69, 3, -1, 1),
    Sketcher.Constraint("Coincident", 73, 3, -1, 1),
    Sketcher.Constraint("Equal", 1, 17),
    Sketcher.Constraint("Equal", 17, 21),
    Sketcher.Constraint("Equal", 21, 29),
    Sketcher.Constraint("Equal", 29, 37),
    Sketcher.Constraint("Equal", 37, 41),
    Sketcher.Constraint("Equal", 25, 45),
    Sketcher.Constraint("Equal", 41, 49),
    Sketcher.Constraint("Equal", 49, 57),
    Sketcher.Constraint("Equal", 57, 61),
    Sketcher.Constraint("Equal", 53, 69),
    Sketcher.Constraint("Equal", 33, 73),
    Sketcher.Constraint("Symmetric", 2, 2, 42, 2, -1, 1),
    Sketcher.Constraint("Symmetric", 3, 2, 43, 2, -1, 1),
    Sketcher.Constraint("Symmetric", 4, 2, 44, 2, -1, 1),
    Sketcher.Constraint("Symmetric", 5, 2, 45, 1, -1, 1),
    Sketcher.Constraint("Symmetric", 6, 2, 46, 2, -1, 1),
    Sketcher.Constraint("Symmetric", 7, 2, 47, 2, -1, 1),
    Sketcher.Constraint("Symmetric", 8, 2, 48, 2, -1, 1),
    Sketcher.Constraint("Symmetric", 9, 1, 49, 1, -1, 1),
    Sketcher.Constraint("Symmetric", 10, 2, 50, 2, -1, 1),
    Sketcher.Constraint("Symmetric", 11, 2, 51, 2, -1, 1),
    Sketcher.Constraint("Symmetric", 12, 2, 52, 2, -1, 1),
    Sketcher.Constraint("Symmetric", 13, 1, 53, 1, -1, 1),
    Sketcher.Constraint("Symmetric", 14, 2, 54, 2, -1, 1),
    Sketcher.Constraint("Symmetric", 15, 2, 55, 2, -1, 1),
    Sketcher.Constraint("Symmetric", 18, 2, 58, 2, -1, 1),
    Sketcher.Constraint("Symmetric", 22, 2, 62, 2, -1, 1),
    Sketcher.Constraint("Symmetric", 23, 2, 63, 2, -1, 1),
    Sketcher.Constraint("Symmetric", 25, 1, 65, 1, -1, 1),
    Sketcher.Constraint("Symmetric", 26, 2, 66, 2, -1, 1),
    Sketcher.Constraint("Symmetric", 27, 2, 67, 2, -1, 1),
    Sketcher.Constraint("Symmetric", 28, 2, 68, 2, -1, 1),
    Sketcher.Constraint("Symmetric", 30, 2, 70, 2, -1, 1),
    Sketcher.Constraint("Symmetric", 31, 2, 71, 2, -1, 1),
    Sketcher.Constraint("Symmetric", 34, 2, 74, 2, -1, 1),
    Sketcher.Constraint("Symmetric", 35, 2, 75, 2, -1, 1),
    Sketcher.Constraint("Symmetric", 36, 2, 76, 2, -1, 1),
    Sketcher.Constraint("Symmetric", 37, 1, 77, 2, -1, 1),
    Sketcher.Constraint("Symmetric", 38, 2, 78, 2, -1, 1),
    Sketcher.Constraint("Symmetric", 35, 2, 42, 2, -2),
    Sketcher.Constraint("Symmetric", 34, 2, 43, 2, -2),
    Sketcher.Constraint("Symmetric", 31, 2, 46, 2, -2),
    Sketcher.Constraint("Symmetric", 30, 2, 47, 2, -2),
    Sketcher.Constraint("Symmetric", 27, 2, 50, 2, -2),
    Sketcher.Constraint("Symmetric", 26, 2, 51, 2, -2),
    Sketcher.Constraint("Symmetric", 23, 2, 54, 2, -2),
    Sketcher.Constraint("Symmetric", 22, 2, 55, 2, -2),
    Sketcher.Constraint("Perpendicular", 0, 20),
    Sketcher.Constraint("Perpendicular", 2, 22),
    Sketcher.Constraint("Perpendicular", 3, 23),
    Sketcher.Constraint("Perpendicular", 4, 24),
    Sketcher.Constraint("Perpendicular", 6, 26),
    Sketcher.Constraint("Perpendicular", 7, 27),
    Sketcher.Constraint("Perpendicular", 8, 28),
    Sketcher.Constraint("Perpendicular", 10, 30),
    Sketcher.Constraint("Perpendicular", 12, 32),
    Sketcher.Constraint("Perpendicular", 14, 34),
    Sketcher.Constraint("Perpendicular", 16, 36),
    Sketcher.Constraint("Perpendicular", 18, 38),
    Sketcher.Constraint("Perpendicular", 20, 40),
    Sketcher.Constraint("Perpendicular", 22, 42),
    Sketcher.Constraint("Perpendicular", 36, 56),
    Sketcher.Constraint("Perpendicular", 38, 58),
    Sketcher.Constraint("Perpendicular", 40, 60),
    Sketcher.Constraint("Perpendicular", 42, 62),
    Sketcher.Constraint("Perpendicular", 44, 64),
    Sketcher.Constraint("Perpendicular", 50, 70),
    Sketcher.Constraint("Perpendicular", 52, 72),
    Sketcher.Constraint("Perpendicular", 54, 74),
    Sketcher.Constraint("Horizontal", 19, 2, 58, 2),
    Sketcher.Constraint("Horizontal", 18, 2, 59, 2),
    Sketcher.Constraint("Vertical", 39, 2, 78, 2),
    Sketcher.Constraint("Vertical", 38, 2, 79, 2),
    Sketcher.Constraint("Equal", 79, 19),
    Sketcher.Constraint("Equal", 0, 4),
    Sketcher.Constraint("Equal", 2, 6),
    Sketcher.Constraint("Equal", 3, 7),
    Sketcher.Constraint("Equal", 4, 8),
    Sketcher.Constraint("Equal", 6, 10),
    Sketcher.Constraint("Equal", 7, 11),
    Sketcher.Constraint("Equal", 8, 12),
    Sketcher.Constraint("Equal", 10, 14),
    Sketcher.Constraint("Equal", 11, 15),
    Sketcher.Constraint("Equal", 12, 16),
    Sketcher.Constraint("Equal", 14, 18),
    Sketcher.Constraint("Equal", 16, 20),
    Sketcher.Constraint("Equal", 18, 22),
    Sketcher.Constraint("Equal", 20, 24),
    Sketcher.Constraint("Equal", 22, 26),
    Sketcher.Constraint("Equal", 24, 28),
    Sketcher.Constraint("Equal", 28, 32),
    Sketcher.Constraint("Angle", 3, Q("162 deg")),
    Sketcher.Constraint("Angle", 7, Q("144 deg")),
    Sketcher.Constraint("Radius", 5, 2.835389),
    Sketcher.Constraint("Radius", 9, 2.202281),
    Sketcher.Constraint("Radius", 33, 6.440019),
    Sketcher.Constraint("Radius", 13, 0.794196),
    Sketcher.Constraint("Radius", 25, 6.440014),
    Sketcher.Constraint("Radius", 65, 1.366793),
    Sketcher.Constraint("DistanceX", 39, 1, 39, 2, 0.951339),
    Sketcher.Constraint("Distance", 3, 0.951339),
    Sketcher.Constraint("DistanceX", 5, 3, -1, 1, 4.189482),
    Sketcher.Constraint("DistanceY", 13, 3, -1, 1, 2.580359),
    Sketcher.Constraint("DistanceY", 2, 2, -1, 1, 6.89851),
    Sketcher.Constraint("DistanceX", 3, 2, -1, 1, 2.64609),
    Sketcher.Constraint("DistanceY", 5, 2, -1, 1, 5.675319),
    Sketcher.Constraint("DistanceY", 8, 2, -1, 1, 4.668869),
    Sketcher.Constraint("DistanceX", -1, 1, 64, 2, 5.819778),
    Sketcher.Constraint("Distance", 77, 0.300356),
])
pad2 = body.newObject("PartDesign::Pad", "Pad001")
pad2.Profile = sketch2
pad2.setExpression("Length", "Params.pad2_length")
pad2.Reversed = True

# Sketch on XZ plane
sketch3 = body.newObject("Sketcher::SketchObject", "Sketch002")
sketch3.AttachmentSupport = (doc.getObject("XZ_Plane"), [""])
sketch3.MapMode = "FlatFace"
sketch3.AttachmentOffset = App.Placement(App.Vector(0, 0, -14.2), App.Rotation())
sketch3.addGeometry(Part.Circle(App.Vector(0, 0, 0), App.Vector(0, 0, 1), 8), False)
sketch3.addConstraint([
    Sketcher.Constraint("Coincident", 0, 3, -1, 1),
    Sketcher.Constraint("Diameter", 0, 16.0),
])
sketch3.setExpression("Constraints[1]", "Params.sketch3_diameter")
pad3 = body.newObject("PartDesign::Pad", "Pad002")
pad3.Profile = sketch3
pad3.setExpression("Length", "Params.pad3_length")
pad3.Reversed = True

# Sketch on XZ plane
sketch4 = body.newObject("Sketcher::SketchObject", "Sketch003")
sketch4.AttachmentSupport = (doc.getObject("XZ_Plane"), [""])
sketch4.MapMode = "FlatFace"
sketch4.AttachmentOffset = App.Placement(App.Vector(0, 0, -16.1), App.Rotation())
sketch4.addGeometry(Part.Circle(App.Vector(0, 0, 0), App.Vector(0, 0, 1), 2.5), False)
sketch4.addConstraint([
    Sketcher.Constraint("Coincident", 0, 3, -1, 1),
    Sketcher.Constraint("Diameter", 0, 5.0),
])
sketch4.setExpression("Constraints[1]", "Params.sketch4_diameter")
pocket1 = body.newObject("PartDesign::Pocket", "Pocket")
pocket1.Profile = sketch4
pocket1.Type = "ThroughAll"
pocket1.Midplane = True

doc.recompute()
